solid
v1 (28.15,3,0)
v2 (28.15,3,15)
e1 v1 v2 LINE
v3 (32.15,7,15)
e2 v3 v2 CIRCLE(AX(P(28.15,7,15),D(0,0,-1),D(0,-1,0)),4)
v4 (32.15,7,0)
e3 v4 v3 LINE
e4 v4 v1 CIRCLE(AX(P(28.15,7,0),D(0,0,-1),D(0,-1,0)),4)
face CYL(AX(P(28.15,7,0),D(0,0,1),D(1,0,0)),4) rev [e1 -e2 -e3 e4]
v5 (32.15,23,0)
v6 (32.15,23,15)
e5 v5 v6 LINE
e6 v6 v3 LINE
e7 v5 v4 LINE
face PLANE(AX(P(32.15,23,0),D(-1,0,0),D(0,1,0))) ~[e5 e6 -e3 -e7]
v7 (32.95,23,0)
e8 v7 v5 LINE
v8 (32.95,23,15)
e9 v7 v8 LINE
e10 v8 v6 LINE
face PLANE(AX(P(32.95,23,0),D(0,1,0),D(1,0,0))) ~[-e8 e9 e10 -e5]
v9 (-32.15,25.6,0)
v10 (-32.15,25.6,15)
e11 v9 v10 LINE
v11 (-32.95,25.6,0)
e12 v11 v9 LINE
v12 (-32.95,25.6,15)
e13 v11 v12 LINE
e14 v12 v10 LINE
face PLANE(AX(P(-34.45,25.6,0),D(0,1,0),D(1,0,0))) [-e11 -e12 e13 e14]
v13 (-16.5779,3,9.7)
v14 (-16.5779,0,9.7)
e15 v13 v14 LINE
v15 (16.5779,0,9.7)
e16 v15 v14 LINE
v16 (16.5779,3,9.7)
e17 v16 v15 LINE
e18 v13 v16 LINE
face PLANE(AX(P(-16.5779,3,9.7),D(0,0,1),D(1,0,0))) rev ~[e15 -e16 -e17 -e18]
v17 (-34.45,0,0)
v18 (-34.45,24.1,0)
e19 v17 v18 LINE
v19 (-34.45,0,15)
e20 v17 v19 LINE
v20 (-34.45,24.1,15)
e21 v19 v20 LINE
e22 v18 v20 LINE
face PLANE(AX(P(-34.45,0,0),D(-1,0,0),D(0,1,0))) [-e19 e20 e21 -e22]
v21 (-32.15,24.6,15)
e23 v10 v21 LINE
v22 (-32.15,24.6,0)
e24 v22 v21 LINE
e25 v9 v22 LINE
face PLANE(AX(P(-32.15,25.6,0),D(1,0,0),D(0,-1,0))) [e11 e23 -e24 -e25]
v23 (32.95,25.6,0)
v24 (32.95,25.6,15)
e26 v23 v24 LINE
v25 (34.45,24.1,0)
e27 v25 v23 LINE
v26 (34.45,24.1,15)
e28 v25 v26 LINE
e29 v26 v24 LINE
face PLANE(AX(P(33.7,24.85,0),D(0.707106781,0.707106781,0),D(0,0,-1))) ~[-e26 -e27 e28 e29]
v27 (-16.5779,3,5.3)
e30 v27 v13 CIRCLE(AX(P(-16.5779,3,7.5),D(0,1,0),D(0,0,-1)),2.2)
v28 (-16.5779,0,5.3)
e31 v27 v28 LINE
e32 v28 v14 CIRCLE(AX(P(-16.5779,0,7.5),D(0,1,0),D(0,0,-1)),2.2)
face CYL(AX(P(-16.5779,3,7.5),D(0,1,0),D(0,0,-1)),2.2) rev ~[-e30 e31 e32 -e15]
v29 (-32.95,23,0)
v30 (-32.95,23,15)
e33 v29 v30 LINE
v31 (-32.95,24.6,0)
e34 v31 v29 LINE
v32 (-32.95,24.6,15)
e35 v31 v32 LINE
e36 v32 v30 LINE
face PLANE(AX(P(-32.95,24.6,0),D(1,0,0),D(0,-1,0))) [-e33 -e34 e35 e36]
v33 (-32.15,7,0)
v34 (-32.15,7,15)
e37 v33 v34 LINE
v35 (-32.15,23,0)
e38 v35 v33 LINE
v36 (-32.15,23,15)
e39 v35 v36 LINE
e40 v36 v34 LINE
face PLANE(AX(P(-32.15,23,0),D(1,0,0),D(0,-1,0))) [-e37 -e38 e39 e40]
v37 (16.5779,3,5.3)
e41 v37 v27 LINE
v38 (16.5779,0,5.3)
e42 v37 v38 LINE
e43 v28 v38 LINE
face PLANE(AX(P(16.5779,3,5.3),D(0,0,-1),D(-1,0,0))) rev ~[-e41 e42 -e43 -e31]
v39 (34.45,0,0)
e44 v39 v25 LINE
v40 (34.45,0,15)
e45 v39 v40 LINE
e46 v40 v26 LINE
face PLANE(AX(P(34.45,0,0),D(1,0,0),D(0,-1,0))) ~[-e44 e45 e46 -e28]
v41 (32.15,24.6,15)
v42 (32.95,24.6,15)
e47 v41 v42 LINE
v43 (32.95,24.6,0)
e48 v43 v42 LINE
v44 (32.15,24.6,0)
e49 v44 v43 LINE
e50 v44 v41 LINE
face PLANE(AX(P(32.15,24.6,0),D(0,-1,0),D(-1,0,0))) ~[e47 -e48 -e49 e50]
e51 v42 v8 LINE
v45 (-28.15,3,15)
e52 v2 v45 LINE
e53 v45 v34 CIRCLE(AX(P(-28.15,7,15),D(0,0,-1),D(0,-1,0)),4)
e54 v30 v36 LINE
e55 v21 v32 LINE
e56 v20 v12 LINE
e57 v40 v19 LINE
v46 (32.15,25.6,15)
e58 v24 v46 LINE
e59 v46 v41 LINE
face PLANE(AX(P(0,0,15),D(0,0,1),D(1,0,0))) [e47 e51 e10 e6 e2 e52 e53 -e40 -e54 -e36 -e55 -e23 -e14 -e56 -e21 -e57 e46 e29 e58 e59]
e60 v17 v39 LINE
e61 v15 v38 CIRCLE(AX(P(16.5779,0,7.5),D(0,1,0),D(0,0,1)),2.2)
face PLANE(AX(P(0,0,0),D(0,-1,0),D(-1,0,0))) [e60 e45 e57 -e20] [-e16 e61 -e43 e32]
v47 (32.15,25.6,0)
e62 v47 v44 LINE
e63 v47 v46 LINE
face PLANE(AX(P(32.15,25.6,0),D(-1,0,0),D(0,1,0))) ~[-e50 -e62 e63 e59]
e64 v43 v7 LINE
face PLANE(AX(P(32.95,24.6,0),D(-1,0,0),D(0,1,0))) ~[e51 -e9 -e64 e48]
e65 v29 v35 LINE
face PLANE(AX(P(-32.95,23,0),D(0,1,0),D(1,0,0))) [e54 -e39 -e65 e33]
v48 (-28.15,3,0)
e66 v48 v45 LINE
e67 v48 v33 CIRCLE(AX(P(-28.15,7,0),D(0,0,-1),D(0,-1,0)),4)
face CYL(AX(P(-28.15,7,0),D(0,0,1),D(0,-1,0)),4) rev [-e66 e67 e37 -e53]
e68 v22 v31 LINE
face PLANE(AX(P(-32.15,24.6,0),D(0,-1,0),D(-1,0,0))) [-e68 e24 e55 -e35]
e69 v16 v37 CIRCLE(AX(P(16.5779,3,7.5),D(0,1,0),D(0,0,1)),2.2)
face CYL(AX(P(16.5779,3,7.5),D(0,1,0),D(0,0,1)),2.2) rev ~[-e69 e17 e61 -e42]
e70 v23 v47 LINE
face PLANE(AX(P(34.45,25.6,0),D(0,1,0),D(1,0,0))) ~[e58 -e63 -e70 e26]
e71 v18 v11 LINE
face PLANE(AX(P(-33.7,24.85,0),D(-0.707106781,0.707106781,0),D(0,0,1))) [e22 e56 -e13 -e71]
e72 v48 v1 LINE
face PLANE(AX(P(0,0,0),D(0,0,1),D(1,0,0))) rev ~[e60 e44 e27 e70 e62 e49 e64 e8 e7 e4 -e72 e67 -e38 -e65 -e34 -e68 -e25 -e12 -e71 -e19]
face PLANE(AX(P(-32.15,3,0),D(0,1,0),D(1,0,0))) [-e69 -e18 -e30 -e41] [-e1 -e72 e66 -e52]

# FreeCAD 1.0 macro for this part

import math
import FreeCAD as App
import Part
import Sketcher

V = App.Vector
Q = App.Units.Quantity


def edges_at(feature, points):
    """Names of the edges that pass closest to the given points."""
    edges = feature.Shape.Edges
    near = lambda p: min(range(len(edges)), key=lambda i: edges[i].distToShape(Part.Vertex(*p))[0])
    return sorted({f"Edge{near(p) + 1}" for p in points})


def add_polygon(sketch, points):
    """Adds a closed chain of lines whose ends are joined by coincident constraints."""
    first, n = sketch.GeometryCount, len(points)
    for a, b in zip(points, points[1:] + points[:1]):
        sketch.addGeometry(Part.LineSegment(App.Vector(*a, 0), App.Vector(*b, 0)), False)
    for i in range(n):
        sketch.addConstraint(Sketcher.Constraint("Coincident", first + i, 2, first + (i + 1) % n, 1))

doc = App.newDocument("Part")
body = doc.addObject("PartDesign::Body", "Body")

sketch1 = doc.addObject("Sketcher::SketchObject", "Sketch")
body.addObject(sketch1)
sketch1.AttachmentSupport = (doc.XY_Plane, [""])
sketch1.MapMode = "FlatFace"
add_polygon(sketch1, [(-34.5, 0), (0, 0), (0, 3), (-32.1, 3), (-32.1, 23), (-33, 23), (-33, 24.6), (-32.1, 24.6), (-32.1, 25.6), (-34.5, 25.6)])
sketch1.addConstraint([
    Sketcher.Constraint("Horizontal", 0),
    Sketcher.Constraint("Vertical", 1),
    Sketcher.Constraint("Horizontal", 2),
    Sketcher.Constraint("Vertical", 3),
    Sketcher.Constraint("Horizontal", 4),
    Sketcher.Constraint("Vertical", 5),
    Sketcher.Constraint("Horizontal", 6),
    Sketcher.Constraint("Vertical", 7),
    Sketcher.Constraint("Horizontal", 8),
    Sketcher.Constraint("Vertical", 9),
    Sketcher.Constraint("Coincident", 0, 2, -1, 1),
    Sketcher.Constraint("Vertical", 3, 2, 6, 2),
    Sketcher.Constraint("DistanceY", 1, 1, 1, 2, Q("3 mm")),
    Sketcher.Constraint("DistanceY", 3, 1, 3, 2, Q("20 mm")),
    Sketcher.Constraint("DistanceY", 7, 1, 7, 2, Q("1 mm")),
    Sketcher.Constraint("DistanceX", 4, 2, 4, 1, Q("0.8 mm")),
    Sketcher.Constraint("DistanceY", 5, 1, 5, 2, Q("1.6 mm")),
    Sketcher.Constraint("DistanceX", 8, 2, 5, 2, Q("1.5 mm")),
    Sketcher.Constraint("DistanceX", 0, 1, 0, 2, Q("34.45 mm")),
])
pad1 = doc.addObject("PartDesign::Pad", "Pad")
body.addObject(pad1)
pad1.Profile = sketch1
pad1.Length = 15
doc.recompute()

mirrored = doc.addObject("PartDesign::Mirrored", "Mirrored")
body.addObject(mirrored)
mirrored.Originals = [pad1]
mirrored.MirrorPlane = (doc.YZ_Plane, [""])
body.Tip = mirrored

sketch2 = doc.addObject("Sketcher::SketchObject", "Sketch001")
body.addObject(sketch2)
sketch2.AttachmentSupport = (doc.XZ_Plane, [""])
sketch2.MapMode = "FlatFace"
sketch2.AttachmentOffset = App.Placement(V(0, 0, -3), App.Rotation())
sketch2.addGeometry([
    Part.ArcOfCircle(Part.Circle(V(-16.6, 7.5, 0), V(0, 0, 1), 2.2), math.radians(90), math.radians(270)),
    Part.LineSegment(V(-16.6, 9.7, 0), V(16.6, 9.7, 0)),
    Part.ArcOfCircle(Part.Circle(V(16.6, 7.5, 0), V(0, 0, 1), 2.2), math.radians(-90), math.radians(90)),
    Part.LineSegment(V(16.6, 5.3, 0), V(-16.6, 5.3, 0)),
], False)
sketch2.addConstraint([
    Sketcher.Constraint("Tangent", 0, 1, 1, 1),
    Sketcher.Constraint("Tangent", 1, 2, 2, 2),
    Sketcher.Constraint("Tangent", 2, 1, 3, 1),
    Sketcher.Constraint("Tangent", 3, 2, 0, 2),
    Sketcher.Constraint("Horizontal", 1),
    Sketcher.Constraint("Horizontal", 3),
    Sketcher.Constraint("Radius", 0, Q("2.2 mm")),
    Sketcher.Constraint("DistanceY", -1, 1, 0, 3, Q("7.5 mm")),
    Sketcher.Constraint("DistanceX", 1, 1, 1, 2, Q("33.1558 mm")),
    Sketcher.Constraint("DistanceX", 0, 3, -1, 1, Q("16.578 mm")),
])
pocket1 = doc.addObject("PartDesign::Pocket", "Pocket")
body.addObject(pocket1)
pocket1.Profile = sketch2
pocket1.Type = "ThroughAll"
pocket1.Reversed = True
doc.recompute()

chamfer = doc.addObject("PartDesign::Chamfer", "Chamfer")
body.addObject(chamfer)
chamfer.Base = (pocket1, edges_at(pocket1, [(-34.45, 25.6, 7.5), (34.45, 25.6, 7.5)]))
chamfer.Size = 1.5
doc.recompute()

fillet = doc.addObject("PartDesign::Fillet", "Fillet")
body.addObject(fillet)
fillet.Base = (chamfer, edges_at(chamfer, [(32.15, 3, 7.5), (-32.15, 3, 7.5)]))
fillet.Radius = 4

doc.recompute()
